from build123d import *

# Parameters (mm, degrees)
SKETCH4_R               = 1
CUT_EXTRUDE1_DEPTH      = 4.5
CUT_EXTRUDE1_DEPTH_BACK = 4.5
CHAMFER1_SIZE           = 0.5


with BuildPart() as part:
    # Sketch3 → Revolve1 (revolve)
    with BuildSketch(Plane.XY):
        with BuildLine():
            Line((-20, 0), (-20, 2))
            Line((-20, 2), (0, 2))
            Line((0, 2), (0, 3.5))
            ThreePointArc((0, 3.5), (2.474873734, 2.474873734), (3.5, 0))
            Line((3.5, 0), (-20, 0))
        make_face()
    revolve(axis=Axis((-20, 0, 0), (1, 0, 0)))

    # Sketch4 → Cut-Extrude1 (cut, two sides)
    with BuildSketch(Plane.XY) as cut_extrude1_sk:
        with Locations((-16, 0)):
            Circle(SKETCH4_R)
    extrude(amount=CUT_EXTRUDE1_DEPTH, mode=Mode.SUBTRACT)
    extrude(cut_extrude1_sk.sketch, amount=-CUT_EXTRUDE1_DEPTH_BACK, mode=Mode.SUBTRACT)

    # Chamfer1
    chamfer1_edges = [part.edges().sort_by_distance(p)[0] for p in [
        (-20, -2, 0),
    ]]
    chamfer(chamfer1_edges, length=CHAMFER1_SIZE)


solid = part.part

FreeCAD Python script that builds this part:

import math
import FreeCAD as App
import Part
import Sketcher
from FreeCAD import Vector


def edges_at(feature, points):
    """Names of the edges that pass closest to the given points."""
    edges = feature.Shape.Edges
    near = lambda p: min(range(len(edges)), key=lambda i: edges[i].distToShape(Part.Vertex(*p))[0])
    return sorted({f"Edge{near(p) + 1}" for p in points})

doc = App.newDocument("Part")
body = doc.addObject("PartDesign::Body", "Body")

sketch1 = body.newObject("Sketcher::SketchObject", "Sketch")
sketch1.AttachmentSupport = (doc.getObject("XY_Plane"), [""])
sketch1.MapMode = "FlatFace"
sketch1.addGeometry([
    Part.LineSegment(Vector(-20, 2, 0), Vector(-20, 0, 0)),
    Part.LineSegment(Vector(-20, 0, 0), Vector(3.5, 0, 0)),
    Part.ArcOfCircle(Part.Circle(Vector(0, 0, 0), Vector(0, 0, 1), 3.5), math.radians(0), math.radians(90)),
    Part.LineSegment(Vector(0, 3.5, 0), Vector(0, 2, 0)),
    Part.LineSegment(Vector(0, 2, 0), Vector(-20, 2, 0)),
], False)
sketch1.addConstraint([
    Sketcher.Constraint("Coincident", 0, 2, 1, 1),
    Sketcher.Constraint("Coincident", 1, 2, 2, 1),
    Sketcher.Constraint("Coincident", 2, 2, 3, 1),
    Sketcher.Constraint("Coincident", 3, 2, 4, 1),
    Sketcher.Constraint("Coincident", 4, 2, 0, 1),
    Sketcher.Constraint("Vertical", 0),
    Sketcher.Constraint("Horizontal", 1),
    Sketcher.Constraint("Vertical", 3),
    Sketcher.Constraint("Horizontal", 4),
    Sketcher.Constraint("Coincident", 2, 3, -1, 1),
    Sketcher.Constraint("PointOnObject", 0, 2, -1),
    Sketcher.Constraint("PointOnObject", 2, 2, -2),
    Sketcher.Constraint("Radius", 2, 3.5),
    Sketcher.Constraint("DistanceX", 4, 2, 4, 1, 20.0),
    Sketcher.Constraint("DistanceY", 0, 2, 0, 1, 2.0),
])
revolution = body.newObject("PartDesign::Revolution", "Revolution")
revolution.Profile = sketch1
revolution.ReferenceAxis = (sketch1, ["H_Axis"])
revolution.Angle = 360

sketch2 = body.newObject("Sketcher::SketchObject", "Sketch001")
sketch2.AttachmentSupport = (doc.getObject("XY_Plane"), [""])
sketch2.MapMode = "FlatFace"
sketch2.addGeometry(Part.Circle(Vector(-16, 0, 0), Vector(0, 0, 1), 1), False)
sketch2.addConstraint([
    Sketcher.Constraint("PointOnObject", 0, 3, -1),
    Sketcher.Constraint("Diameter", 0, 2.0),
    Sketcher.Constraint("DistanceX", 0, 3, -1, 1, 16.0),
])
pocket1 = body.newObject("PartDesign::Pocket", "Pocket")
pocket1.Profile = sketch2
pocket1.Type = "ThroughAll"
pocket1.Midplane = True
doc.recompute()

chamfer = body.newObject("PartDesign::Chamfer", "Chamfer")
chamfer.Base = (pocket1, edges_at(pocket1, [(-20, -2, 0)]))
chamfer.Size = 0.5

doc.recompute()
